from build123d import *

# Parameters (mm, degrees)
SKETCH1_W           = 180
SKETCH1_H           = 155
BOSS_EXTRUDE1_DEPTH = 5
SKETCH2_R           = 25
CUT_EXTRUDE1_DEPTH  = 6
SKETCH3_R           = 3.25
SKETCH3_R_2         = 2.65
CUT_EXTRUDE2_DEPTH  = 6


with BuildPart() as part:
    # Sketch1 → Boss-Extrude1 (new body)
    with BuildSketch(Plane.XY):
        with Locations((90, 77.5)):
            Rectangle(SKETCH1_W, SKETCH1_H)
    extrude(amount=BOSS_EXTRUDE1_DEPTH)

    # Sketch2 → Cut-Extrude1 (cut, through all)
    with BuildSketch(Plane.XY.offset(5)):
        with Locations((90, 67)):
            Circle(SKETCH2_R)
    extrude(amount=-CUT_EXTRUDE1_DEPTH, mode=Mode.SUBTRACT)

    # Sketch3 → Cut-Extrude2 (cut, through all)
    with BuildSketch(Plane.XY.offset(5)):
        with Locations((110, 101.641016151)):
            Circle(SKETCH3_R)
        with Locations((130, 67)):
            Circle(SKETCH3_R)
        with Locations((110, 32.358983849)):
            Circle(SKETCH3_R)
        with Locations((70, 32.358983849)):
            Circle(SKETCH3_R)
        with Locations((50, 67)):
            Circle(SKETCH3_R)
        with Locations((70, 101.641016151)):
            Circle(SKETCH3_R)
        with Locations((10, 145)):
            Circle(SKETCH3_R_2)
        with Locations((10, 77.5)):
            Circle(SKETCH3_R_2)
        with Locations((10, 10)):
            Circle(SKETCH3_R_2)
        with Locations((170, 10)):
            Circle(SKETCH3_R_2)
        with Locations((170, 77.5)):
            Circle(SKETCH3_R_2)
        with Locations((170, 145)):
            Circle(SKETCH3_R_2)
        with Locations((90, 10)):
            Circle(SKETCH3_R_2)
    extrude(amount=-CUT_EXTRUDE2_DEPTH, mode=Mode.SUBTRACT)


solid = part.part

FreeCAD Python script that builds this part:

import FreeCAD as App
import Part
import Sketcher
from FreeCAD import Vector
Q = App.Units.Quantity

doc = App.newDocument("Part")
body = doc.addObject("PartDesign::Body", "Body")

# Sketch on XY plane
sketch1 = body.newObject("Sketcher::SketchObject", "Sketch")
sketch1.AttachmentSupport = (doc.getObject("XY_Plane"), [""])
sketch1.MapMode = "FlatFace"
sketch1.addGeometry([
    Part.LineSegment(Vector(0, 155, 0), Vector(0, 0, 0)),
    Part.LineSegment(Vector(0, 0, 0), Vector(180, 0, 0)),
    Part.LineSegment(Vector(180, 0, 0), Vector(180, 155, 0)),
    Part.LineSegment(Vector(180, 155, 0), Vector(0, 155, 0)),
], False)
sketch1.addConstraint([
    Sketcher.Constraint("Coincident", 0, 2, 1, 1),
    Sketcher.Constraint("Coincident", 1, 2, 2, 1),
    Sketcher.Constraint("Coincident", 2, 2, 3, 1),
    Sketcher.Constraint("Coincident", 3, 2, 0, 1),
    Sketcher.Constraint("Vertical", 0),
    Sketcher.Constraint("Horizontal", 1),
    Sketcher.Constraint("Vertical", 2),
    Sketcher.Constraint("Horizontal", 3),
    Sketcher.Constraint("Coincident", 0, 2, -1, 1),
    Sketcher.Constraint("DistanceX", 1, 1, 1, 2, Q("180 mm")),
    Sketcher.Constraint("DistanceY", 0, 2, 0, 1, Q("155 mm")),
])
pad1 = body.newObject("PartDesign::Pad", "Pad")
pad1.Profile = sketch1
pad1.Length = 5

# Sketch on XY plane
sketch2 = body.newObject("Sketcher::SketchObject", "Sketch001")
sketch2.AttachmentSupport = (doc.getObject("XY_Plane"), [""])
sketch2.MapMode = "FlatFace"
sketch2.AttachmentOffset = App.Placement(Vector(0, 0, 5), App.Rotation())
sketch2.addGeometry(Part.Circle(Vector(90, 67, 0), Vector(0, 0, 1), 25), False)
sketch2.addConstraint([
    Sketcher.Constraint("Diameter", 0, Q("50 mm")),
    Sketcher.Constraint("DistanceX", -1, 1, 0, 3, Q("90 mm")),
    Sketcher.Constraint("DistanceY", -1, 1, 0, 3, Q("67 mm")),
])
pocket1 = body.newObject("PartDesign::Pocket", "Pocket")
pocket1.Profile = sketch2
pocket1.Type = "ThroughAll"

# Sketch on XY plane
sketch3 = body.newObject("Sketcher::SketchObject", "Sketch002")
sketch3.AttachmentSupport = (doc.getObject("XY_Plane"), [""])
sketch3.MapMode = "FlatFace"
sketch3.AttachmentOffset = App.Placement(Vector(0, 0, 5), App.Rotation())
sketch3.addGeometry([
    Part.Circle(Vector(110, 101.6, 0), Vector(0, 0, 1), 3.2),  # 0
    Part.Circle(Vector(130, 67, 0), Vector(0, 0, 1), 3.2),  # 1
    Part.Circle(Vector(110, 32.4, 0), Vector(0, 0, 1), 3.2),  # 2
    Part.Circle(Vector(70, 32.4, 0), Vector(0, 0, 1), 3.2),  # 3
    Part.Circle(Vector(50, 67, 0), Vector(0, 0, 1), 3.2),  # 4
    Part.Circle(Vector(70, 101.6, 0), Vector(0, 0, 1), 3.2),  # 5
    Part.Circle(Vector(10, 145, 0), Vector(0, 0, 1), 2.6),  # 6
    Part.Circle(Vector(10, 77.5, 0), Vector(0, 0, 1), 2.6),  # 7
    Part.Circle(Vector(10, 10, 0), Vector(0, 0, 1), 2.6),  # 8
    Part.Circle(Vector(170, 10, 0), Vector(0, 0, 1), 2.6),  # 9
    Part.Circle(Vector(170, 77.5, 0), Vector(0, 0, 1), 2.6),  # 10
    Part.Circle(Vector(170, 145, 0), Vector(0, 0, 1), 2.6),  # 11
    Part.Circle(Vector(90, 10, 0), Vector(0, 0, 1), 2.6),  # 12
], False)
sketch3.addConstraint([
    Sketcher.Constraint("Equal", 0, 1),
    Sketcher.Constraint("Equal", 1, 2),
    Sketcher.Constraint("Equal", 2, 3),
    Sketcher.Constraint("Equal", 3, 4),
    Sketcher.Constraint("Equal", 4, 5),
    Sketcher.Constraint("Equal", 6, 7),
    Sketcher.Constraint("Equal", 7, 8),
    Sketcher.Constraint("Equal", 8, 9),
    Sketcher.Constraint("Equal", 9, 10),
    Sketcher.Constraint("Equal", 10, 11),
    Sketcher.Constraint("Equal", 11, 12),
    Sketcher.Constraint("Horizontal", 2, 3, 3, 3),
    Sketcher.Constraint("Horizontal", 1, 3, 4, 3),
    Sketcher.Constraint("Horizontal", 0, 3, 5, 3),
    Sketcher.Constraint("Horizontal", 8, 3, 9, 3),
    Sketcher.Constraint("Horizontal", 7, 3, 10, 3),
    Sketcher.Constraint("Horizontal", 6, 3, 11, 3),
    Sketcher.Constraint("Horizontal", 9, 3, 12, 3),
    Sketcher.Constraint("Vertical", 0, 3, 2, 3),
    Sketcher.Constraint("Vertical", 3, 3, 5, 3),
    Sketcher.Constraint("Vertical", 6, 3, 7, 3),
    Sketcher.Constraint("Vertical", 7, 3, 8, 3),
    Sketcher.Constraint("Vertical", 9, 3, 10, 3),
    Sketcher.Constraint("Vertical", 10, 3, 11, 3),
    Sketcher.Constraint("Diameter", 0, Q("6.5 mm")),
    Sketcher.Constraint("Diameter", 6, Q("5.3 mm")),
    Sketcher.Constraint("DistanceX", -1, 1, 0, 3, Q("110 mm")),
    Sketcher.Constraint("DistanceX", -1, 1, 1, 3, Q("130 mm")),
    Sketcher.Constraint("DistanceY", -1, 1, 1, 3, Q("67 mm")),
    Sketcher.Constraint("DistanceX", -1, 1, 3, 3, Q("70 mm")),
    Sketcher.Constraint("DistanceX", -1, 1, 4, 3, Q("50 mm")),
    Sketcher.Constraint("DistanceX", -1, 1, 6, 3, Q("10 mm")),
    Sketcher.Constraint("DistanceY", -1, 1, 6, 3, Q("145 mm")),
    Sketcher.Constraint("DistanceY", -1, 1, 8, 3, Q("10 mm")),
    Sketcher.Constraint("DistanceX", -1, 1, 9, 3, Q("170 mm")),
    Sketcher.Constraint("DistanceX", -1, 1, 12, 3, Q("90 mm")),
    Sketcher.Constraint("DistanceY", -1, 1, 7, 3, Q("77.5 mm")),
    Sketcher.Constraint("DistanceY", -1, 1, 0, 3, Q("101.641016 mm")),
    Sketcher.Constraint("DistanceY", -1, 1, 2, 3, Q("32.358984 mm")),
])
pocket2 = body.newObject("PartDesign::Pocket", "Pocket001")
pocket2.Profile = sketch3
pocket2.Type = "ThroughAll"

doc.recompute()
